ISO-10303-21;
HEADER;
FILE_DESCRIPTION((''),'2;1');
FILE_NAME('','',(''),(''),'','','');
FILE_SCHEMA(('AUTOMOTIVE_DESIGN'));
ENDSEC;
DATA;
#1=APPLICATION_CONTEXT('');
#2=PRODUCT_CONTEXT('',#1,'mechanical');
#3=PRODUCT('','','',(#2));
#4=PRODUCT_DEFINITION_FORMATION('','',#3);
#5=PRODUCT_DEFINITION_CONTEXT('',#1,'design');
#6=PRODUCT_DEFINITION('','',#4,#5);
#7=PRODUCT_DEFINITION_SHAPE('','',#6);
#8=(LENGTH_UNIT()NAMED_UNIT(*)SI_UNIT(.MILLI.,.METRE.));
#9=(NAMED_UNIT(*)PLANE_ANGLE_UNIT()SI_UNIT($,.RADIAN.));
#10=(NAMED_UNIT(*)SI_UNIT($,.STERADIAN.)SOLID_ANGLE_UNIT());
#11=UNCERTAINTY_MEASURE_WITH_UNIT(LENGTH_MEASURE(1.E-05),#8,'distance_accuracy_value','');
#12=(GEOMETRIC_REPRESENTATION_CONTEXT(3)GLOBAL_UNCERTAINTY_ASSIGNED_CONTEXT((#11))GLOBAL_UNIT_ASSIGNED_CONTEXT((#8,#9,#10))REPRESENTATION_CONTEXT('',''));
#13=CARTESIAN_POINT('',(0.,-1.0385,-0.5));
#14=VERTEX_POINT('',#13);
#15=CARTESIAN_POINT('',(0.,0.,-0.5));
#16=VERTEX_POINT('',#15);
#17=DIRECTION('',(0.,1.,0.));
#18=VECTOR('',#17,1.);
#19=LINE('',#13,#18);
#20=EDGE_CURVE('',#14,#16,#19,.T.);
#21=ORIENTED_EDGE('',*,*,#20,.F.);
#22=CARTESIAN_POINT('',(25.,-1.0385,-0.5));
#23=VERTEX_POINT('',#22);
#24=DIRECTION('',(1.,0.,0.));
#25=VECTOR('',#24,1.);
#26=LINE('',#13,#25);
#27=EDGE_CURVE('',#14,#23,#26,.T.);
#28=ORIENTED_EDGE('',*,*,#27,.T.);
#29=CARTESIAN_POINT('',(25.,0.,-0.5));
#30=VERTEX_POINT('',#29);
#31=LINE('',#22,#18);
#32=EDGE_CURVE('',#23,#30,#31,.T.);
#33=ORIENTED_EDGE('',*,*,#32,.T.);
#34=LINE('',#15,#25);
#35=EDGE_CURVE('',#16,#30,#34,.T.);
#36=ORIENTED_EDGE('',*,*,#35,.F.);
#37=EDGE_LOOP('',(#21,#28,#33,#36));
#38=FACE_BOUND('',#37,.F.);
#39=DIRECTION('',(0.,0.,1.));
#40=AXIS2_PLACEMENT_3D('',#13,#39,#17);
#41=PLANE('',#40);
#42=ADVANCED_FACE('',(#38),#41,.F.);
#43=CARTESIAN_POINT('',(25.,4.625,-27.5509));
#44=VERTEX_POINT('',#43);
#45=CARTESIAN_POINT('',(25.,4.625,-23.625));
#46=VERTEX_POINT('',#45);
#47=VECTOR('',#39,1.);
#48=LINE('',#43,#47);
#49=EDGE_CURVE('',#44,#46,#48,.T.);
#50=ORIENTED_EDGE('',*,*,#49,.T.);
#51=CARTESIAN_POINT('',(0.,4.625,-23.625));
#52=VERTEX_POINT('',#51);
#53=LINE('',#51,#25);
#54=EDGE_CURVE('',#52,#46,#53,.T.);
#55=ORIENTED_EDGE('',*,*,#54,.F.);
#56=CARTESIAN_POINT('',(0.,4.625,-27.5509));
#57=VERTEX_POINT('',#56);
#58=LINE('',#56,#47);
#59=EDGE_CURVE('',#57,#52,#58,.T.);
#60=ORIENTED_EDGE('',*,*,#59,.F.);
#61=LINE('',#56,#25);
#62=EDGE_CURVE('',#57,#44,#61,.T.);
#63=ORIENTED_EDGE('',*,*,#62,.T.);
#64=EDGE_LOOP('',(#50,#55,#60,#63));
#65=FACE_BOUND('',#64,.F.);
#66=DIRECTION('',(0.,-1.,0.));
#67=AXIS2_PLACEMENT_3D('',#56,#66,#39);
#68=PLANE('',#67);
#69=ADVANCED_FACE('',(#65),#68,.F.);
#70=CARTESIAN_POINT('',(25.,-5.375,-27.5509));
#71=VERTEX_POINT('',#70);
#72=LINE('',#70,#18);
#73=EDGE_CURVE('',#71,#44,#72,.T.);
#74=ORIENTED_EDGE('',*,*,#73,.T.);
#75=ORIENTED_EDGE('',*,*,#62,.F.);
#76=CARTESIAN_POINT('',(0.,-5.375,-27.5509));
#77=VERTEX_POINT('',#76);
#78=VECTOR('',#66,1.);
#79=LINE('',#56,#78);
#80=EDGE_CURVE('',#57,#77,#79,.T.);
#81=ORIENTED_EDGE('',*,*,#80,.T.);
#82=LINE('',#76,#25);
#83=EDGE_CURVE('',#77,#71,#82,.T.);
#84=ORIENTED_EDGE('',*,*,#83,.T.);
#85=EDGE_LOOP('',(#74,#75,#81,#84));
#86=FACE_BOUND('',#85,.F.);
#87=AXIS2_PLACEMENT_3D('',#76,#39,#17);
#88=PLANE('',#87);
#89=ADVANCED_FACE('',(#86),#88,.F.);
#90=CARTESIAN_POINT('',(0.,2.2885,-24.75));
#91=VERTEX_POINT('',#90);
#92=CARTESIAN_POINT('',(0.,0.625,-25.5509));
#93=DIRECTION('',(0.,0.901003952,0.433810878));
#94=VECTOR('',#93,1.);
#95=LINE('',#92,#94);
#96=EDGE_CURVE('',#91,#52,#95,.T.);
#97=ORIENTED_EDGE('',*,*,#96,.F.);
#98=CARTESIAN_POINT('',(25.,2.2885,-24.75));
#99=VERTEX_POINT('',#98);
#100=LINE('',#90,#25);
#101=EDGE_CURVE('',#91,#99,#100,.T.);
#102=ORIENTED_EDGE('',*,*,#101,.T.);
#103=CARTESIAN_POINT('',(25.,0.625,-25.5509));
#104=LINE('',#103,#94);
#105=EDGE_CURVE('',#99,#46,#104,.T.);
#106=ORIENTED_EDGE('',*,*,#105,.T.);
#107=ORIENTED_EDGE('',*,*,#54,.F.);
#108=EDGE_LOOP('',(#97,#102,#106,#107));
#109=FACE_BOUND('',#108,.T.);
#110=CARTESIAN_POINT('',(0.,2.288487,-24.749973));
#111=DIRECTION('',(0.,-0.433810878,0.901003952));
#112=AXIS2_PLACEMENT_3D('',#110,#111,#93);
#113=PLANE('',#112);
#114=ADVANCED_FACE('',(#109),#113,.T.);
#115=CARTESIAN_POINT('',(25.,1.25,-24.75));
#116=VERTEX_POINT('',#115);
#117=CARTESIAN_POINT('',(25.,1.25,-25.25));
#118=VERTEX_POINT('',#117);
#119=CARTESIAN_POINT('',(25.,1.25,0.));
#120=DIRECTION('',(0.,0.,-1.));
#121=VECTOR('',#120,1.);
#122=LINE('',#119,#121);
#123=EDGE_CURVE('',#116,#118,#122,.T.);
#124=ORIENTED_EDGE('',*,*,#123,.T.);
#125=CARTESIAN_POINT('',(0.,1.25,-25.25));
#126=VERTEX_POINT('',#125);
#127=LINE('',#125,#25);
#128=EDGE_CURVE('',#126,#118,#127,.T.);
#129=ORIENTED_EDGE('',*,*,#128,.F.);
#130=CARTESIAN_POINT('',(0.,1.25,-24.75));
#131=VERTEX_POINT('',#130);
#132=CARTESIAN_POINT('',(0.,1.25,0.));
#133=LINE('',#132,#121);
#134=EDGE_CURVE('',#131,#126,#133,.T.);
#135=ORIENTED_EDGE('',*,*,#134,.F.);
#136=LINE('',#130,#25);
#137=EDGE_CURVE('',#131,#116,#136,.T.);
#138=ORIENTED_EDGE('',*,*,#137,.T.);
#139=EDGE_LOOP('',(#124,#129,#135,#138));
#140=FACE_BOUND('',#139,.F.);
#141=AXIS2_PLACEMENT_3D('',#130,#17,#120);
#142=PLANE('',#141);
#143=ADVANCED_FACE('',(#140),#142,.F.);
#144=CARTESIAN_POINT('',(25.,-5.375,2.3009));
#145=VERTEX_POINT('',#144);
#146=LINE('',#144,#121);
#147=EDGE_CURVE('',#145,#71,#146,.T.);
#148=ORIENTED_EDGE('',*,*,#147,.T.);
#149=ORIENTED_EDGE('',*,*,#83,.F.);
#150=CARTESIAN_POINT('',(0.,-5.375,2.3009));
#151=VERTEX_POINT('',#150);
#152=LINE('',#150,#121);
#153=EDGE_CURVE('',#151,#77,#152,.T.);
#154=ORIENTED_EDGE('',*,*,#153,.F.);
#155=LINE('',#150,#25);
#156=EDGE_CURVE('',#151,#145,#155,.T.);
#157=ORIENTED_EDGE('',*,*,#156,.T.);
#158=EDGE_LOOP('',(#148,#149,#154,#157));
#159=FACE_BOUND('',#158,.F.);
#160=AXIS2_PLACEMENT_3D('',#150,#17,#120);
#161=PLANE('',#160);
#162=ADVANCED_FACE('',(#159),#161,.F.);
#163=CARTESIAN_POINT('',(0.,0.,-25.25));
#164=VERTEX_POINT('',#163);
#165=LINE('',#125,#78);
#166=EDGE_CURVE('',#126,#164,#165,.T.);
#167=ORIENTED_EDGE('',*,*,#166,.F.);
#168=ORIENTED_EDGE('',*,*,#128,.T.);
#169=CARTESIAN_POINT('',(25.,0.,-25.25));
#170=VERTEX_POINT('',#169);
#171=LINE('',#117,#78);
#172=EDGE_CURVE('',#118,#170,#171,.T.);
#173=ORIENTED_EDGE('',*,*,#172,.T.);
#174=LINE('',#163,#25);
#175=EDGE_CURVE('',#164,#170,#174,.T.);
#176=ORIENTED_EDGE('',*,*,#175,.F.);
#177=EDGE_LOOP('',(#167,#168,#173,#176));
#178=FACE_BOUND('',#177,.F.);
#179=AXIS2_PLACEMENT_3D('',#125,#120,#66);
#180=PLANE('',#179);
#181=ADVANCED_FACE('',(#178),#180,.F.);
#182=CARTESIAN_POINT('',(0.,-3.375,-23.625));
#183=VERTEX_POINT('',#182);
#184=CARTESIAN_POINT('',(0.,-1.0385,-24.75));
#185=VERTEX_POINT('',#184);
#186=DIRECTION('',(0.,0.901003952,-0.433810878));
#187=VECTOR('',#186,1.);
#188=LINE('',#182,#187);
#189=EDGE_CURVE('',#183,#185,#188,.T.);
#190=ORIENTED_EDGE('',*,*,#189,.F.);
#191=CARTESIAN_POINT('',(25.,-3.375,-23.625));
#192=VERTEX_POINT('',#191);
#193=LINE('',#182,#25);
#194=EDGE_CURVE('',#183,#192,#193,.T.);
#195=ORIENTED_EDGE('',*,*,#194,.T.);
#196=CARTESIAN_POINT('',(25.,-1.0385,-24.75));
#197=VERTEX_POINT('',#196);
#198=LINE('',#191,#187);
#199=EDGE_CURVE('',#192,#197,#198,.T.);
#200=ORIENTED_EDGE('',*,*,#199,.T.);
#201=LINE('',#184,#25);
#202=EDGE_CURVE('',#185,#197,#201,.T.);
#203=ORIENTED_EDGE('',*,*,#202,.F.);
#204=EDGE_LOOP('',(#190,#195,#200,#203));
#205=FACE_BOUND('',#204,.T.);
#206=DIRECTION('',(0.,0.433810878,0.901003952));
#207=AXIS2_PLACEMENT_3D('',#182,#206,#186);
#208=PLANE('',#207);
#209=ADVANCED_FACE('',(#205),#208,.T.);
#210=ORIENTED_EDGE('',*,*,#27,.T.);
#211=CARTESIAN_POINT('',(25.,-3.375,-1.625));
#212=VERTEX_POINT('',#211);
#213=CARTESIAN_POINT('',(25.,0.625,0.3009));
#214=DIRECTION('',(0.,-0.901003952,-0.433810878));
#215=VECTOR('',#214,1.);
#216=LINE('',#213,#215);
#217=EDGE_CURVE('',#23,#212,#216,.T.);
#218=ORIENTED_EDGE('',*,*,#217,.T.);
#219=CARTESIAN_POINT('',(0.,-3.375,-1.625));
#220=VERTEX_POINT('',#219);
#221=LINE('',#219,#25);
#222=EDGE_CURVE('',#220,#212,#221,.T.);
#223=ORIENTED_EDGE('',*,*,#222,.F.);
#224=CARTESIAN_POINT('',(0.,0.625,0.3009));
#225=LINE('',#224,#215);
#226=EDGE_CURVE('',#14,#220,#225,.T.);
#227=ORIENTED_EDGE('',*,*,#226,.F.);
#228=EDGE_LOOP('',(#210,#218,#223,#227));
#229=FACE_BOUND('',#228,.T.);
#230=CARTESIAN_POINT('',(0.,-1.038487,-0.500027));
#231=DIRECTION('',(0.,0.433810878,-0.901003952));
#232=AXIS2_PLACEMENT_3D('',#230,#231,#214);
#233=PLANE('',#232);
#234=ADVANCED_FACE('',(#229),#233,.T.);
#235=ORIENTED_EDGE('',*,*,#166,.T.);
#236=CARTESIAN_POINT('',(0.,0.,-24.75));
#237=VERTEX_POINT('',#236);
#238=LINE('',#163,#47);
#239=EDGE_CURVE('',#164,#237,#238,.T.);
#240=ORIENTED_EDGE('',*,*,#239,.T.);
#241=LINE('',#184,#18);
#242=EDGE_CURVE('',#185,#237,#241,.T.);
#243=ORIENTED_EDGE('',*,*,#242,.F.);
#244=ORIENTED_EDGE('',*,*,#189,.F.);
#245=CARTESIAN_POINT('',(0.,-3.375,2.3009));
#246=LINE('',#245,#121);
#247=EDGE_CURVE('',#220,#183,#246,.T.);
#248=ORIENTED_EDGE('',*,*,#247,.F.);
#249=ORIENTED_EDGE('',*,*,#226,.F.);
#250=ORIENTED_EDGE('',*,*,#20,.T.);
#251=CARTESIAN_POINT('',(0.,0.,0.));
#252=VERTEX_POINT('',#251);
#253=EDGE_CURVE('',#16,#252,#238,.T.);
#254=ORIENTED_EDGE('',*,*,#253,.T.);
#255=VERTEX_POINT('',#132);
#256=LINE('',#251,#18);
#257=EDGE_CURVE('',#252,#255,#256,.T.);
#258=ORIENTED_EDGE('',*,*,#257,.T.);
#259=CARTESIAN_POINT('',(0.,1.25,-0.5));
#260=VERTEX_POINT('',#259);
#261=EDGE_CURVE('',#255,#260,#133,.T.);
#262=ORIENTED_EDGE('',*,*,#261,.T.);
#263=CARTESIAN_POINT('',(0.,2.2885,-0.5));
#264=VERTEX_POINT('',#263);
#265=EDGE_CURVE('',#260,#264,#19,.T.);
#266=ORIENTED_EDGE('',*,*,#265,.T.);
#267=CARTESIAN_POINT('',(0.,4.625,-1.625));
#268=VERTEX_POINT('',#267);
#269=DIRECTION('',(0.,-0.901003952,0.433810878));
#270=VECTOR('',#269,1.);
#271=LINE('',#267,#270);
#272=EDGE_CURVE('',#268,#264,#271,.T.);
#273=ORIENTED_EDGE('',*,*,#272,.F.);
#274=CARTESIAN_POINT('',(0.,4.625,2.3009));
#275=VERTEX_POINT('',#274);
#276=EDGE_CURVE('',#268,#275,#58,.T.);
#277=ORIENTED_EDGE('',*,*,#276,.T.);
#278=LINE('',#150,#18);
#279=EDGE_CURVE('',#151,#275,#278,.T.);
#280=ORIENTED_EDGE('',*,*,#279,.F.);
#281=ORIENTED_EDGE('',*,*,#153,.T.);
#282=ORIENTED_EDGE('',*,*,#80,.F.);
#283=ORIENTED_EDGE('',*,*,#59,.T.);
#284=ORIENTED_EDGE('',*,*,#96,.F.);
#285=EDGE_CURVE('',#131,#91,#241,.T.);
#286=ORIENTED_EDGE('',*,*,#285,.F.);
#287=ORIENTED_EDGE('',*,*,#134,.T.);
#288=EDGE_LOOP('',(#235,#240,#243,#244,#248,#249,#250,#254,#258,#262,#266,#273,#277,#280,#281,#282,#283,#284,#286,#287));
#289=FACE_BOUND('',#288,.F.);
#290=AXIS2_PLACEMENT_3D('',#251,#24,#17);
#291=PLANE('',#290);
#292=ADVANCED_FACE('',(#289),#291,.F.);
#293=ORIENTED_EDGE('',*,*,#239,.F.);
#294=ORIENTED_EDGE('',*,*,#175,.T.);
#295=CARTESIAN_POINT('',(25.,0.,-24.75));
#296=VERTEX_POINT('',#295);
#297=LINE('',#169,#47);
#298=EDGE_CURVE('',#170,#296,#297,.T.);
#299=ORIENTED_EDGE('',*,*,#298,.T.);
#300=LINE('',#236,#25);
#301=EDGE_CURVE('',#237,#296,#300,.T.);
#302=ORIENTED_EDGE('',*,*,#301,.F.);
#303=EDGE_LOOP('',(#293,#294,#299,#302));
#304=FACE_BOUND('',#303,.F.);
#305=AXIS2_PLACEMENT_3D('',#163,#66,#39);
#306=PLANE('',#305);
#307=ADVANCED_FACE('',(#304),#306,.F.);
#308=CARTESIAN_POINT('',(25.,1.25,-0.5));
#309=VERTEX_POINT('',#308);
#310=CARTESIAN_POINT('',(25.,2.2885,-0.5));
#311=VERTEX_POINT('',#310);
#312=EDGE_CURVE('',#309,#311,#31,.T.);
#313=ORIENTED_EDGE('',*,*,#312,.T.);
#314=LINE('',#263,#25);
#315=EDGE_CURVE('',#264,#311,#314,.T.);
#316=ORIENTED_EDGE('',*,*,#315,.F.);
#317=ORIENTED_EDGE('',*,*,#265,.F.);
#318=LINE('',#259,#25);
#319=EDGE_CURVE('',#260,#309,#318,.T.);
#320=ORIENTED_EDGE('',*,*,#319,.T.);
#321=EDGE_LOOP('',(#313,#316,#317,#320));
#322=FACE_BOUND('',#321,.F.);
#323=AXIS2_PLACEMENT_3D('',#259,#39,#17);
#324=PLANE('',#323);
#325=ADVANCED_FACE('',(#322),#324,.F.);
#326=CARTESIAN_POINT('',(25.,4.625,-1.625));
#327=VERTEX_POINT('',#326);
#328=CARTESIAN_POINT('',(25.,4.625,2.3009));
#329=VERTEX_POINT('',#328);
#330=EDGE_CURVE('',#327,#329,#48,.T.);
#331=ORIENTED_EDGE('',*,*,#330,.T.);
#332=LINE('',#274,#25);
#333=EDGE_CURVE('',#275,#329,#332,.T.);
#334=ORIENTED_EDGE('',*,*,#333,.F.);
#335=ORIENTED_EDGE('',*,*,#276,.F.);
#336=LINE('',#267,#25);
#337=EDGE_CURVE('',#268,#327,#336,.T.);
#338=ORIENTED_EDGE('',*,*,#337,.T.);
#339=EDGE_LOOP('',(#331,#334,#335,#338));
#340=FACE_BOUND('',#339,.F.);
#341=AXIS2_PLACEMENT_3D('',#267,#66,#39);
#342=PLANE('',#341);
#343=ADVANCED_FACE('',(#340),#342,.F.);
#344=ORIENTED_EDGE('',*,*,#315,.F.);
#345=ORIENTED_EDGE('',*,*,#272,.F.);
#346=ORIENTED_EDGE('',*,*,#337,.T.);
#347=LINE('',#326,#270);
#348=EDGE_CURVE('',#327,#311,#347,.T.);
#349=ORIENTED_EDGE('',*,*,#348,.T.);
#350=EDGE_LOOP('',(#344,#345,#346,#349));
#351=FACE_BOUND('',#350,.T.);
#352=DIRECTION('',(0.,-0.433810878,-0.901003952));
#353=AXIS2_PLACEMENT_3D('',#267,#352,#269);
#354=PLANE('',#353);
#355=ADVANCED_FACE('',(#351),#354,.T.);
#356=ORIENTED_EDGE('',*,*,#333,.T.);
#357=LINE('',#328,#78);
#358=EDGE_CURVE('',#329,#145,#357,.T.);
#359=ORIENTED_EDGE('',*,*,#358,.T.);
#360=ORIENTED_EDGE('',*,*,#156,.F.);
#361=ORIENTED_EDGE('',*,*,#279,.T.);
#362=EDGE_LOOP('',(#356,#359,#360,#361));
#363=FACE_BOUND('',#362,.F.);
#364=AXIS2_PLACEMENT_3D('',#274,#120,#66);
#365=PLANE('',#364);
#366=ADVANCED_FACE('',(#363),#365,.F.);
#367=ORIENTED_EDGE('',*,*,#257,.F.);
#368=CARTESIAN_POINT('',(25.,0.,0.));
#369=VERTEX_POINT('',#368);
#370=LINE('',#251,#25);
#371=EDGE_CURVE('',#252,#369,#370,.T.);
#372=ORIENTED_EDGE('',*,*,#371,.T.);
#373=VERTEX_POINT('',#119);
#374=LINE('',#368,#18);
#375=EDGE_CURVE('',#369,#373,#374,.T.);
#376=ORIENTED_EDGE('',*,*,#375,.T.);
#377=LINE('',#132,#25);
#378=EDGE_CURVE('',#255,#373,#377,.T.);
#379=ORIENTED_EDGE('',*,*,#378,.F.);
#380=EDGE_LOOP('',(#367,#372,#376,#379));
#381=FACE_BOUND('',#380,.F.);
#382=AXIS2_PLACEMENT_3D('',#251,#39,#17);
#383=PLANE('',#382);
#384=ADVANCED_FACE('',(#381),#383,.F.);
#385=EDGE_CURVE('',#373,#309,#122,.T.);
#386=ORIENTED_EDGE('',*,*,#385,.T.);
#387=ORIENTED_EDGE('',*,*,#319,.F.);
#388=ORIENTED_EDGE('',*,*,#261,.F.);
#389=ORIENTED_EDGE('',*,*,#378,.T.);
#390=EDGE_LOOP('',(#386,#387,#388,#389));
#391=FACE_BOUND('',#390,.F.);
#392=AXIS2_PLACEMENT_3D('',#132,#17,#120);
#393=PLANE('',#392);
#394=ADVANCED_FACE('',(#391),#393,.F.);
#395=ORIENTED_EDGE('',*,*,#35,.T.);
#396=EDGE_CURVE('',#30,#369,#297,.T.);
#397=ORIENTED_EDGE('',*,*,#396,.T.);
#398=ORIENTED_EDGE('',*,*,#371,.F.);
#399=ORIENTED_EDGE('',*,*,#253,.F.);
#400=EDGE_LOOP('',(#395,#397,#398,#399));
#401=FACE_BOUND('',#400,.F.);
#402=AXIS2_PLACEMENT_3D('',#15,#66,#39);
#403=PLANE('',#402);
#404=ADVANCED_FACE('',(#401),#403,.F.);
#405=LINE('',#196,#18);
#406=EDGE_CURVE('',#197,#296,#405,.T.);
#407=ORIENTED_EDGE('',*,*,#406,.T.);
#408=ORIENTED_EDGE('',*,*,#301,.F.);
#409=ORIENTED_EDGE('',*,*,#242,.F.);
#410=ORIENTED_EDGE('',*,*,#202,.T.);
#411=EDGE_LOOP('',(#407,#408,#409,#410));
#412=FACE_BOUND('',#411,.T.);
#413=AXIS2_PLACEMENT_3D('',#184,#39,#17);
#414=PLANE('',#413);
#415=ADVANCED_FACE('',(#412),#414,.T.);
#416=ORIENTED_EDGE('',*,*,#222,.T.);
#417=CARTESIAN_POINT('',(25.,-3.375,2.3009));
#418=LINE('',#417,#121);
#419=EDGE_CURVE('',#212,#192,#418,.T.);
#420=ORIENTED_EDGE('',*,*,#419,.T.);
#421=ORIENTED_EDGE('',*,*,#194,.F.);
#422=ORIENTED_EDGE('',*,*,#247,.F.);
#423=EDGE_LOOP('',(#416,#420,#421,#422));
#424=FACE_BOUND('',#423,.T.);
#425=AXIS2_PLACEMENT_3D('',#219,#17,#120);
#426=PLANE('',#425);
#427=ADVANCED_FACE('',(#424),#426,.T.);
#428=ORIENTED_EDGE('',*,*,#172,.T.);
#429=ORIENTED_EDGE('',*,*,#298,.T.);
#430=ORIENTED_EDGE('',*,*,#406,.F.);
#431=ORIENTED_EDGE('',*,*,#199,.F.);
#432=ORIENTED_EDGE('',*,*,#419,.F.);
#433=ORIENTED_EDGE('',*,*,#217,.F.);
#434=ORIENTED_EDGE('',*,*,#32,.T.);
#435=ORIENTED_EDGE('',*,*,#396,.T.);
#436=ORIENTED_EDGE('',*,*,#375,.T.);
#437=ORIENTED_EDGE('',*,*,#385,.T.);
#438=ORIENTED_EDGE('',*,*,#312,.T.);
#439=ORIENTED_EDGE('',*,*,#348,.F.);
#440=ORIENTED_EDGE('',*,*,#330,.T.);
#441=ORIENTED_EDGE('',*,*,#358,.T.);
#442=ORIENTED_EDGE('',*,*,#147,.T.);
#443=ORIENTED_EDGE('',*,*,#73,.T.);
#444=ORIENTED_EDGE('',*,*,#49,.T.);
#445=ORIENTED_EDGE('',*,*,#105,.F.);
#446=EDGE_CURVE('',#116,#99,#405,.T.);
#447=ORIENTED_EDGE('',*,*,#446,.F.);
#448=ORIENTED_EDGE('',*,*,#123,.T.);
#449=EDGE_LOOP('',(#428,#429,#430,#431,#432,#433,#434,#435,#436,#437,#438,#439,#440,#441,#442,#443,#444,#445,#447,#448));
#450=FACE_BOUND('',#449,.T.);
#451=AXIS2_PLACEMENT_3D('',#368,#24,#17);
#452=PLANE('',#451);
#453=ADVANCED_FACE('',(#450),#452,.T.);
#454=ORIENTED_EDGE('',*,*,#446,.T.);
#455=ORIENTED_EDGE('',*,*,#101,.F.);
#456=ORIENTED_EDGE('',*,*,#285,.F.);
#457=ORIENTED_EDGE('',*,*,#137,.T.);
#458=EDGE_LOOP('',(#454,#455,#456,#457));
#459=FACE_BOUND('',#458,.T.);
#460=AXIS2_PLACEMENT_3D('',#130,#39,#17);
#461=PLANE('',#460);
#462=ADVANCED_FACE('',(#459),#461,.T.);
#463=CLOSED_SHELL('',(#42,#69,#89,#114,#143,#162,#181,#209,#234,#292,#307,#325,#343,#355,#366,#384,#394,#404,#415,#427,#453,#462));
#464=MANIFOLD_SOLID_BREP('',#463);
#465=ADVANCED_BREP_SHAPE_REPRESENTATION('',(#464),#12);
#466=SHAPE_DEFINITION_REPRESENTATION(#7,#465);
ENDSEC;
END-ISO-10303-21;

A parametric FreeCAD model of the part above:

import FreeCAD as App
import Part
import Sketcher

V = App.Vector
Q = App.Units.Quantity

doc = App.newDocument("Part")
body = doc.addObject("PartDesign::Body", "Body")

# Sketch on YZ plane
sketch1 = body.newObject("Sketcher::SketchObject", "Sketch")
sketch1.AttachmentSupport = (doc.getObject("YZ_Plane"), [""])
sketch1.MapMode = "FlatFace"
sketch1.addGeometry([
    Part.LineSegment(V(0, 0, 0), V(1.2, 0, 0)),  # 0
    Part.LineSegment(V(1.2, 0, 0), V(1.2, -0.5, 0)),  # 1
    Part.LineSegment(V(1.2, -0.5, 0), V(2.3, -0.5, 0)),  # 2
    Part.LineSegment(V(2.3, -0.5, 0), V(4.6, -1.6, 0)),  # 3
    Part.LineSegment(V(4.6, -1.6, 0), V(4.6, 2.3, 0)),  # 4
    Part.LineSegment(V(4.6, 2.3, 0), V(-5.4, 2.3, 0)),  # 5
    Part.LineSegment(V(-5.4, 2.3, 0), V(-5.4, -27.6, 0)),  # 6
    Part.LineSegment(V(-5.4, -27.6, 0), V(4.6, -27.6, 0)),  # 7
    Part.LineSegment(V(4.6, -27.6, 0), V(4.6, -23.6, 0)),  # 8
    Part.LineSegment(V(4.6, -23.6, 0), V(2.3, -24.7, 0)),  # 9
    Part.LineSegment(V(2.3, -24.8, 0), V(1.2, -24.8, 0)),  # 10
    Part.LineSegment(V(1.2, -24.8, 0), V(1.2, -25.2, 0)),  # 11
    Part.LineSegment(V(1.2, -25.2, 0), V(0, -25.2, 0)),  # 12
    Part.LineSegment(V(0, -25.2, 0), V(0, -24.8, 0)),  # 13
    Part.LineSegment(V(0, -24.8, 0), V(-1, -24.8, 0)),  # 14
    Part.LineSegment(V(-1, -24.7, 0), V(-3.4, -23.6, 0)),  # 15
    Part.LineSegment(V(-3.4, -23.6, 0), V(-3.4, -1.6, 0)),  # 16
    Part.LineSegment(V(-3.4, -1.6, 0), V(-1, -0.5, 0)),  # 17
    Part.LineSegment(V(-1, -0.5, 0), V(0, -0.5, 0)),  # 18
    Part.LineSegment(V(0, -0.5, 0), V(0, 0, 0)),  # 19
], False)
sketch1.addConstraint([
    Sketcher.Constraint("Coincident", 0, 2, 1, 1),
    Sketcher.Constraint("Coincident", 1, 2, 2, 1),
    Sketcher.Constraint("Coincident", 2, 2, 3, 1),
    Sketcher.Constraint("Coincident", 3, 2, 4, 1),
    Sketcher.Constraint("Coincident", 4, 2, 5, 1),
    Sketcher.Constraint("Coincident", 5, 2, 6, 1),
    Sketcher.Constraint("Coincident", 6, 2, 7, 1),
    Sketcher.Constraint("Coincident", 7, 2, 8, 1),
    Sketcher.Constraint("Coincident", 8, 2, 9, 1),
    Sketcher.Constraint("Coincident", 9, 2, 10, 1),
    Sketcher.Constraint("Coincident", 10, 2, 11, 1),
    Sketcher.Constraint("Coincident", 11, 2, 12, 1),
    Sketcher.Constraint("Coincident", 12, 2, 13, 1),
    Sketcher.Constraint("Coincident", 13, 2, 14, 1),
    Sketcher.Constraint("Coincident", 14, 2, 15, 1),
    Sketcher.Constraint("Coincident", 15, 2, 16, 1),
    Sketcher.Constraint("Coincident", 16, 2, 17, 1),
    Sketcher.Constraint("Coincident", 17, 2, 18, 1),
    Sketcher.Constraint("Coincident", 18, 2, 19, 1),
    Sketcher.Constraint("Coincident", 19, 2, 0, 1),
    Sketcher.Constraint("Horizontal", 0),
    Sketcher.Constraint("Vertical", 1),
    Sketcher.Constraint("Horizontal", 2),
    Sketcher.Constraint("Vertical", 4),
    Sketcher.Constraint("Horizontal", 5),
    Sketcher.Constraint("Vertical", 6),
    Sketcher.Constraint("Horizontal", 7),
    Sketcher.Constraint("Vertical", 8),
    Sketcher.Constraint("Horizontal", 10),
    Sketcher.Constraint("Vertical", 11),
    Sketcher.Constraint("Horizontal", 12),
    Sketcher.Constraint("Vertical", 13),
    Sketcher.Constraint("Horizontal", 14),
    Sketcher.Constraint("Vertical", 16),
    Sketcher.Constraint("Horizontal", 18),
    Sketcher.Constraint("Vertical", 19),
    Sketcher.Constraint("Coincident", 19, 2, -1, 1),
    Sketcher.Constraint("PointOnObject", 12, 2, -2),
    Sketcher.Constraint("Parallel", 3, 15),
    Sketcher.Constraint("Parallel", 9, 17),
    Sketcher.Constraint("Horizontal", 10, 2, 13, 2),
    Sketcher.Constraint("Horizontal", 8, 2, 15, 2),
    Sketcher.Constraint("Horizontal", 3, 2, 16, 2),
    Sketcher.Constraint("Horizontal", 2, 2, 17, 2),
    Sketcher.Constraint("Vertical", 4, 2, 7, 2),
    Sketcher.Constraint("Vertical", 2, 2, 9, 2),
    Sketcher.Constraint("Vertical", 1, 2, 10, 2),
    Sketcher.Constraint("Vertical", 14, 2, 17, 2),
    Sketcher.Constraint("Equal", 10, 14),
    Sketcher.Constraint("Equal", 4, 8),
    Sketcher.Constraint("Equal", 1, 11),
    Sketcher.Constraint("DistanceY", 16, 1, 16, 2, 22.0),
    Sketcher.Constraint("DistanceY", 1, 2, 1, 1, 0.5),
    Sketcher.Constraint("DistanceX", 6, 2, 15, 2, 2.0),
    Sketcher.Constraint("DistanceX", 16, 2, 3, 2, 8.0),
    Sketcher.Constraint("DistanceX", 0, 1, 0, 2, 1.25),
    Sketcher.Constraint("DistanceY", 11, 2, -1, 1, 25.25),
    Sketcher.Constraint("Angle", 3, Q("-25.7097 deg")),
    Sketcher.Constraint("DistanceY", 4, 1, 4, 2, 3.926),
])
pad1 = body.newObject("PartDesign::Pad", "Pad")
pad1.Profile = sketch1
pad1.Length = 25

doc.recompute()
